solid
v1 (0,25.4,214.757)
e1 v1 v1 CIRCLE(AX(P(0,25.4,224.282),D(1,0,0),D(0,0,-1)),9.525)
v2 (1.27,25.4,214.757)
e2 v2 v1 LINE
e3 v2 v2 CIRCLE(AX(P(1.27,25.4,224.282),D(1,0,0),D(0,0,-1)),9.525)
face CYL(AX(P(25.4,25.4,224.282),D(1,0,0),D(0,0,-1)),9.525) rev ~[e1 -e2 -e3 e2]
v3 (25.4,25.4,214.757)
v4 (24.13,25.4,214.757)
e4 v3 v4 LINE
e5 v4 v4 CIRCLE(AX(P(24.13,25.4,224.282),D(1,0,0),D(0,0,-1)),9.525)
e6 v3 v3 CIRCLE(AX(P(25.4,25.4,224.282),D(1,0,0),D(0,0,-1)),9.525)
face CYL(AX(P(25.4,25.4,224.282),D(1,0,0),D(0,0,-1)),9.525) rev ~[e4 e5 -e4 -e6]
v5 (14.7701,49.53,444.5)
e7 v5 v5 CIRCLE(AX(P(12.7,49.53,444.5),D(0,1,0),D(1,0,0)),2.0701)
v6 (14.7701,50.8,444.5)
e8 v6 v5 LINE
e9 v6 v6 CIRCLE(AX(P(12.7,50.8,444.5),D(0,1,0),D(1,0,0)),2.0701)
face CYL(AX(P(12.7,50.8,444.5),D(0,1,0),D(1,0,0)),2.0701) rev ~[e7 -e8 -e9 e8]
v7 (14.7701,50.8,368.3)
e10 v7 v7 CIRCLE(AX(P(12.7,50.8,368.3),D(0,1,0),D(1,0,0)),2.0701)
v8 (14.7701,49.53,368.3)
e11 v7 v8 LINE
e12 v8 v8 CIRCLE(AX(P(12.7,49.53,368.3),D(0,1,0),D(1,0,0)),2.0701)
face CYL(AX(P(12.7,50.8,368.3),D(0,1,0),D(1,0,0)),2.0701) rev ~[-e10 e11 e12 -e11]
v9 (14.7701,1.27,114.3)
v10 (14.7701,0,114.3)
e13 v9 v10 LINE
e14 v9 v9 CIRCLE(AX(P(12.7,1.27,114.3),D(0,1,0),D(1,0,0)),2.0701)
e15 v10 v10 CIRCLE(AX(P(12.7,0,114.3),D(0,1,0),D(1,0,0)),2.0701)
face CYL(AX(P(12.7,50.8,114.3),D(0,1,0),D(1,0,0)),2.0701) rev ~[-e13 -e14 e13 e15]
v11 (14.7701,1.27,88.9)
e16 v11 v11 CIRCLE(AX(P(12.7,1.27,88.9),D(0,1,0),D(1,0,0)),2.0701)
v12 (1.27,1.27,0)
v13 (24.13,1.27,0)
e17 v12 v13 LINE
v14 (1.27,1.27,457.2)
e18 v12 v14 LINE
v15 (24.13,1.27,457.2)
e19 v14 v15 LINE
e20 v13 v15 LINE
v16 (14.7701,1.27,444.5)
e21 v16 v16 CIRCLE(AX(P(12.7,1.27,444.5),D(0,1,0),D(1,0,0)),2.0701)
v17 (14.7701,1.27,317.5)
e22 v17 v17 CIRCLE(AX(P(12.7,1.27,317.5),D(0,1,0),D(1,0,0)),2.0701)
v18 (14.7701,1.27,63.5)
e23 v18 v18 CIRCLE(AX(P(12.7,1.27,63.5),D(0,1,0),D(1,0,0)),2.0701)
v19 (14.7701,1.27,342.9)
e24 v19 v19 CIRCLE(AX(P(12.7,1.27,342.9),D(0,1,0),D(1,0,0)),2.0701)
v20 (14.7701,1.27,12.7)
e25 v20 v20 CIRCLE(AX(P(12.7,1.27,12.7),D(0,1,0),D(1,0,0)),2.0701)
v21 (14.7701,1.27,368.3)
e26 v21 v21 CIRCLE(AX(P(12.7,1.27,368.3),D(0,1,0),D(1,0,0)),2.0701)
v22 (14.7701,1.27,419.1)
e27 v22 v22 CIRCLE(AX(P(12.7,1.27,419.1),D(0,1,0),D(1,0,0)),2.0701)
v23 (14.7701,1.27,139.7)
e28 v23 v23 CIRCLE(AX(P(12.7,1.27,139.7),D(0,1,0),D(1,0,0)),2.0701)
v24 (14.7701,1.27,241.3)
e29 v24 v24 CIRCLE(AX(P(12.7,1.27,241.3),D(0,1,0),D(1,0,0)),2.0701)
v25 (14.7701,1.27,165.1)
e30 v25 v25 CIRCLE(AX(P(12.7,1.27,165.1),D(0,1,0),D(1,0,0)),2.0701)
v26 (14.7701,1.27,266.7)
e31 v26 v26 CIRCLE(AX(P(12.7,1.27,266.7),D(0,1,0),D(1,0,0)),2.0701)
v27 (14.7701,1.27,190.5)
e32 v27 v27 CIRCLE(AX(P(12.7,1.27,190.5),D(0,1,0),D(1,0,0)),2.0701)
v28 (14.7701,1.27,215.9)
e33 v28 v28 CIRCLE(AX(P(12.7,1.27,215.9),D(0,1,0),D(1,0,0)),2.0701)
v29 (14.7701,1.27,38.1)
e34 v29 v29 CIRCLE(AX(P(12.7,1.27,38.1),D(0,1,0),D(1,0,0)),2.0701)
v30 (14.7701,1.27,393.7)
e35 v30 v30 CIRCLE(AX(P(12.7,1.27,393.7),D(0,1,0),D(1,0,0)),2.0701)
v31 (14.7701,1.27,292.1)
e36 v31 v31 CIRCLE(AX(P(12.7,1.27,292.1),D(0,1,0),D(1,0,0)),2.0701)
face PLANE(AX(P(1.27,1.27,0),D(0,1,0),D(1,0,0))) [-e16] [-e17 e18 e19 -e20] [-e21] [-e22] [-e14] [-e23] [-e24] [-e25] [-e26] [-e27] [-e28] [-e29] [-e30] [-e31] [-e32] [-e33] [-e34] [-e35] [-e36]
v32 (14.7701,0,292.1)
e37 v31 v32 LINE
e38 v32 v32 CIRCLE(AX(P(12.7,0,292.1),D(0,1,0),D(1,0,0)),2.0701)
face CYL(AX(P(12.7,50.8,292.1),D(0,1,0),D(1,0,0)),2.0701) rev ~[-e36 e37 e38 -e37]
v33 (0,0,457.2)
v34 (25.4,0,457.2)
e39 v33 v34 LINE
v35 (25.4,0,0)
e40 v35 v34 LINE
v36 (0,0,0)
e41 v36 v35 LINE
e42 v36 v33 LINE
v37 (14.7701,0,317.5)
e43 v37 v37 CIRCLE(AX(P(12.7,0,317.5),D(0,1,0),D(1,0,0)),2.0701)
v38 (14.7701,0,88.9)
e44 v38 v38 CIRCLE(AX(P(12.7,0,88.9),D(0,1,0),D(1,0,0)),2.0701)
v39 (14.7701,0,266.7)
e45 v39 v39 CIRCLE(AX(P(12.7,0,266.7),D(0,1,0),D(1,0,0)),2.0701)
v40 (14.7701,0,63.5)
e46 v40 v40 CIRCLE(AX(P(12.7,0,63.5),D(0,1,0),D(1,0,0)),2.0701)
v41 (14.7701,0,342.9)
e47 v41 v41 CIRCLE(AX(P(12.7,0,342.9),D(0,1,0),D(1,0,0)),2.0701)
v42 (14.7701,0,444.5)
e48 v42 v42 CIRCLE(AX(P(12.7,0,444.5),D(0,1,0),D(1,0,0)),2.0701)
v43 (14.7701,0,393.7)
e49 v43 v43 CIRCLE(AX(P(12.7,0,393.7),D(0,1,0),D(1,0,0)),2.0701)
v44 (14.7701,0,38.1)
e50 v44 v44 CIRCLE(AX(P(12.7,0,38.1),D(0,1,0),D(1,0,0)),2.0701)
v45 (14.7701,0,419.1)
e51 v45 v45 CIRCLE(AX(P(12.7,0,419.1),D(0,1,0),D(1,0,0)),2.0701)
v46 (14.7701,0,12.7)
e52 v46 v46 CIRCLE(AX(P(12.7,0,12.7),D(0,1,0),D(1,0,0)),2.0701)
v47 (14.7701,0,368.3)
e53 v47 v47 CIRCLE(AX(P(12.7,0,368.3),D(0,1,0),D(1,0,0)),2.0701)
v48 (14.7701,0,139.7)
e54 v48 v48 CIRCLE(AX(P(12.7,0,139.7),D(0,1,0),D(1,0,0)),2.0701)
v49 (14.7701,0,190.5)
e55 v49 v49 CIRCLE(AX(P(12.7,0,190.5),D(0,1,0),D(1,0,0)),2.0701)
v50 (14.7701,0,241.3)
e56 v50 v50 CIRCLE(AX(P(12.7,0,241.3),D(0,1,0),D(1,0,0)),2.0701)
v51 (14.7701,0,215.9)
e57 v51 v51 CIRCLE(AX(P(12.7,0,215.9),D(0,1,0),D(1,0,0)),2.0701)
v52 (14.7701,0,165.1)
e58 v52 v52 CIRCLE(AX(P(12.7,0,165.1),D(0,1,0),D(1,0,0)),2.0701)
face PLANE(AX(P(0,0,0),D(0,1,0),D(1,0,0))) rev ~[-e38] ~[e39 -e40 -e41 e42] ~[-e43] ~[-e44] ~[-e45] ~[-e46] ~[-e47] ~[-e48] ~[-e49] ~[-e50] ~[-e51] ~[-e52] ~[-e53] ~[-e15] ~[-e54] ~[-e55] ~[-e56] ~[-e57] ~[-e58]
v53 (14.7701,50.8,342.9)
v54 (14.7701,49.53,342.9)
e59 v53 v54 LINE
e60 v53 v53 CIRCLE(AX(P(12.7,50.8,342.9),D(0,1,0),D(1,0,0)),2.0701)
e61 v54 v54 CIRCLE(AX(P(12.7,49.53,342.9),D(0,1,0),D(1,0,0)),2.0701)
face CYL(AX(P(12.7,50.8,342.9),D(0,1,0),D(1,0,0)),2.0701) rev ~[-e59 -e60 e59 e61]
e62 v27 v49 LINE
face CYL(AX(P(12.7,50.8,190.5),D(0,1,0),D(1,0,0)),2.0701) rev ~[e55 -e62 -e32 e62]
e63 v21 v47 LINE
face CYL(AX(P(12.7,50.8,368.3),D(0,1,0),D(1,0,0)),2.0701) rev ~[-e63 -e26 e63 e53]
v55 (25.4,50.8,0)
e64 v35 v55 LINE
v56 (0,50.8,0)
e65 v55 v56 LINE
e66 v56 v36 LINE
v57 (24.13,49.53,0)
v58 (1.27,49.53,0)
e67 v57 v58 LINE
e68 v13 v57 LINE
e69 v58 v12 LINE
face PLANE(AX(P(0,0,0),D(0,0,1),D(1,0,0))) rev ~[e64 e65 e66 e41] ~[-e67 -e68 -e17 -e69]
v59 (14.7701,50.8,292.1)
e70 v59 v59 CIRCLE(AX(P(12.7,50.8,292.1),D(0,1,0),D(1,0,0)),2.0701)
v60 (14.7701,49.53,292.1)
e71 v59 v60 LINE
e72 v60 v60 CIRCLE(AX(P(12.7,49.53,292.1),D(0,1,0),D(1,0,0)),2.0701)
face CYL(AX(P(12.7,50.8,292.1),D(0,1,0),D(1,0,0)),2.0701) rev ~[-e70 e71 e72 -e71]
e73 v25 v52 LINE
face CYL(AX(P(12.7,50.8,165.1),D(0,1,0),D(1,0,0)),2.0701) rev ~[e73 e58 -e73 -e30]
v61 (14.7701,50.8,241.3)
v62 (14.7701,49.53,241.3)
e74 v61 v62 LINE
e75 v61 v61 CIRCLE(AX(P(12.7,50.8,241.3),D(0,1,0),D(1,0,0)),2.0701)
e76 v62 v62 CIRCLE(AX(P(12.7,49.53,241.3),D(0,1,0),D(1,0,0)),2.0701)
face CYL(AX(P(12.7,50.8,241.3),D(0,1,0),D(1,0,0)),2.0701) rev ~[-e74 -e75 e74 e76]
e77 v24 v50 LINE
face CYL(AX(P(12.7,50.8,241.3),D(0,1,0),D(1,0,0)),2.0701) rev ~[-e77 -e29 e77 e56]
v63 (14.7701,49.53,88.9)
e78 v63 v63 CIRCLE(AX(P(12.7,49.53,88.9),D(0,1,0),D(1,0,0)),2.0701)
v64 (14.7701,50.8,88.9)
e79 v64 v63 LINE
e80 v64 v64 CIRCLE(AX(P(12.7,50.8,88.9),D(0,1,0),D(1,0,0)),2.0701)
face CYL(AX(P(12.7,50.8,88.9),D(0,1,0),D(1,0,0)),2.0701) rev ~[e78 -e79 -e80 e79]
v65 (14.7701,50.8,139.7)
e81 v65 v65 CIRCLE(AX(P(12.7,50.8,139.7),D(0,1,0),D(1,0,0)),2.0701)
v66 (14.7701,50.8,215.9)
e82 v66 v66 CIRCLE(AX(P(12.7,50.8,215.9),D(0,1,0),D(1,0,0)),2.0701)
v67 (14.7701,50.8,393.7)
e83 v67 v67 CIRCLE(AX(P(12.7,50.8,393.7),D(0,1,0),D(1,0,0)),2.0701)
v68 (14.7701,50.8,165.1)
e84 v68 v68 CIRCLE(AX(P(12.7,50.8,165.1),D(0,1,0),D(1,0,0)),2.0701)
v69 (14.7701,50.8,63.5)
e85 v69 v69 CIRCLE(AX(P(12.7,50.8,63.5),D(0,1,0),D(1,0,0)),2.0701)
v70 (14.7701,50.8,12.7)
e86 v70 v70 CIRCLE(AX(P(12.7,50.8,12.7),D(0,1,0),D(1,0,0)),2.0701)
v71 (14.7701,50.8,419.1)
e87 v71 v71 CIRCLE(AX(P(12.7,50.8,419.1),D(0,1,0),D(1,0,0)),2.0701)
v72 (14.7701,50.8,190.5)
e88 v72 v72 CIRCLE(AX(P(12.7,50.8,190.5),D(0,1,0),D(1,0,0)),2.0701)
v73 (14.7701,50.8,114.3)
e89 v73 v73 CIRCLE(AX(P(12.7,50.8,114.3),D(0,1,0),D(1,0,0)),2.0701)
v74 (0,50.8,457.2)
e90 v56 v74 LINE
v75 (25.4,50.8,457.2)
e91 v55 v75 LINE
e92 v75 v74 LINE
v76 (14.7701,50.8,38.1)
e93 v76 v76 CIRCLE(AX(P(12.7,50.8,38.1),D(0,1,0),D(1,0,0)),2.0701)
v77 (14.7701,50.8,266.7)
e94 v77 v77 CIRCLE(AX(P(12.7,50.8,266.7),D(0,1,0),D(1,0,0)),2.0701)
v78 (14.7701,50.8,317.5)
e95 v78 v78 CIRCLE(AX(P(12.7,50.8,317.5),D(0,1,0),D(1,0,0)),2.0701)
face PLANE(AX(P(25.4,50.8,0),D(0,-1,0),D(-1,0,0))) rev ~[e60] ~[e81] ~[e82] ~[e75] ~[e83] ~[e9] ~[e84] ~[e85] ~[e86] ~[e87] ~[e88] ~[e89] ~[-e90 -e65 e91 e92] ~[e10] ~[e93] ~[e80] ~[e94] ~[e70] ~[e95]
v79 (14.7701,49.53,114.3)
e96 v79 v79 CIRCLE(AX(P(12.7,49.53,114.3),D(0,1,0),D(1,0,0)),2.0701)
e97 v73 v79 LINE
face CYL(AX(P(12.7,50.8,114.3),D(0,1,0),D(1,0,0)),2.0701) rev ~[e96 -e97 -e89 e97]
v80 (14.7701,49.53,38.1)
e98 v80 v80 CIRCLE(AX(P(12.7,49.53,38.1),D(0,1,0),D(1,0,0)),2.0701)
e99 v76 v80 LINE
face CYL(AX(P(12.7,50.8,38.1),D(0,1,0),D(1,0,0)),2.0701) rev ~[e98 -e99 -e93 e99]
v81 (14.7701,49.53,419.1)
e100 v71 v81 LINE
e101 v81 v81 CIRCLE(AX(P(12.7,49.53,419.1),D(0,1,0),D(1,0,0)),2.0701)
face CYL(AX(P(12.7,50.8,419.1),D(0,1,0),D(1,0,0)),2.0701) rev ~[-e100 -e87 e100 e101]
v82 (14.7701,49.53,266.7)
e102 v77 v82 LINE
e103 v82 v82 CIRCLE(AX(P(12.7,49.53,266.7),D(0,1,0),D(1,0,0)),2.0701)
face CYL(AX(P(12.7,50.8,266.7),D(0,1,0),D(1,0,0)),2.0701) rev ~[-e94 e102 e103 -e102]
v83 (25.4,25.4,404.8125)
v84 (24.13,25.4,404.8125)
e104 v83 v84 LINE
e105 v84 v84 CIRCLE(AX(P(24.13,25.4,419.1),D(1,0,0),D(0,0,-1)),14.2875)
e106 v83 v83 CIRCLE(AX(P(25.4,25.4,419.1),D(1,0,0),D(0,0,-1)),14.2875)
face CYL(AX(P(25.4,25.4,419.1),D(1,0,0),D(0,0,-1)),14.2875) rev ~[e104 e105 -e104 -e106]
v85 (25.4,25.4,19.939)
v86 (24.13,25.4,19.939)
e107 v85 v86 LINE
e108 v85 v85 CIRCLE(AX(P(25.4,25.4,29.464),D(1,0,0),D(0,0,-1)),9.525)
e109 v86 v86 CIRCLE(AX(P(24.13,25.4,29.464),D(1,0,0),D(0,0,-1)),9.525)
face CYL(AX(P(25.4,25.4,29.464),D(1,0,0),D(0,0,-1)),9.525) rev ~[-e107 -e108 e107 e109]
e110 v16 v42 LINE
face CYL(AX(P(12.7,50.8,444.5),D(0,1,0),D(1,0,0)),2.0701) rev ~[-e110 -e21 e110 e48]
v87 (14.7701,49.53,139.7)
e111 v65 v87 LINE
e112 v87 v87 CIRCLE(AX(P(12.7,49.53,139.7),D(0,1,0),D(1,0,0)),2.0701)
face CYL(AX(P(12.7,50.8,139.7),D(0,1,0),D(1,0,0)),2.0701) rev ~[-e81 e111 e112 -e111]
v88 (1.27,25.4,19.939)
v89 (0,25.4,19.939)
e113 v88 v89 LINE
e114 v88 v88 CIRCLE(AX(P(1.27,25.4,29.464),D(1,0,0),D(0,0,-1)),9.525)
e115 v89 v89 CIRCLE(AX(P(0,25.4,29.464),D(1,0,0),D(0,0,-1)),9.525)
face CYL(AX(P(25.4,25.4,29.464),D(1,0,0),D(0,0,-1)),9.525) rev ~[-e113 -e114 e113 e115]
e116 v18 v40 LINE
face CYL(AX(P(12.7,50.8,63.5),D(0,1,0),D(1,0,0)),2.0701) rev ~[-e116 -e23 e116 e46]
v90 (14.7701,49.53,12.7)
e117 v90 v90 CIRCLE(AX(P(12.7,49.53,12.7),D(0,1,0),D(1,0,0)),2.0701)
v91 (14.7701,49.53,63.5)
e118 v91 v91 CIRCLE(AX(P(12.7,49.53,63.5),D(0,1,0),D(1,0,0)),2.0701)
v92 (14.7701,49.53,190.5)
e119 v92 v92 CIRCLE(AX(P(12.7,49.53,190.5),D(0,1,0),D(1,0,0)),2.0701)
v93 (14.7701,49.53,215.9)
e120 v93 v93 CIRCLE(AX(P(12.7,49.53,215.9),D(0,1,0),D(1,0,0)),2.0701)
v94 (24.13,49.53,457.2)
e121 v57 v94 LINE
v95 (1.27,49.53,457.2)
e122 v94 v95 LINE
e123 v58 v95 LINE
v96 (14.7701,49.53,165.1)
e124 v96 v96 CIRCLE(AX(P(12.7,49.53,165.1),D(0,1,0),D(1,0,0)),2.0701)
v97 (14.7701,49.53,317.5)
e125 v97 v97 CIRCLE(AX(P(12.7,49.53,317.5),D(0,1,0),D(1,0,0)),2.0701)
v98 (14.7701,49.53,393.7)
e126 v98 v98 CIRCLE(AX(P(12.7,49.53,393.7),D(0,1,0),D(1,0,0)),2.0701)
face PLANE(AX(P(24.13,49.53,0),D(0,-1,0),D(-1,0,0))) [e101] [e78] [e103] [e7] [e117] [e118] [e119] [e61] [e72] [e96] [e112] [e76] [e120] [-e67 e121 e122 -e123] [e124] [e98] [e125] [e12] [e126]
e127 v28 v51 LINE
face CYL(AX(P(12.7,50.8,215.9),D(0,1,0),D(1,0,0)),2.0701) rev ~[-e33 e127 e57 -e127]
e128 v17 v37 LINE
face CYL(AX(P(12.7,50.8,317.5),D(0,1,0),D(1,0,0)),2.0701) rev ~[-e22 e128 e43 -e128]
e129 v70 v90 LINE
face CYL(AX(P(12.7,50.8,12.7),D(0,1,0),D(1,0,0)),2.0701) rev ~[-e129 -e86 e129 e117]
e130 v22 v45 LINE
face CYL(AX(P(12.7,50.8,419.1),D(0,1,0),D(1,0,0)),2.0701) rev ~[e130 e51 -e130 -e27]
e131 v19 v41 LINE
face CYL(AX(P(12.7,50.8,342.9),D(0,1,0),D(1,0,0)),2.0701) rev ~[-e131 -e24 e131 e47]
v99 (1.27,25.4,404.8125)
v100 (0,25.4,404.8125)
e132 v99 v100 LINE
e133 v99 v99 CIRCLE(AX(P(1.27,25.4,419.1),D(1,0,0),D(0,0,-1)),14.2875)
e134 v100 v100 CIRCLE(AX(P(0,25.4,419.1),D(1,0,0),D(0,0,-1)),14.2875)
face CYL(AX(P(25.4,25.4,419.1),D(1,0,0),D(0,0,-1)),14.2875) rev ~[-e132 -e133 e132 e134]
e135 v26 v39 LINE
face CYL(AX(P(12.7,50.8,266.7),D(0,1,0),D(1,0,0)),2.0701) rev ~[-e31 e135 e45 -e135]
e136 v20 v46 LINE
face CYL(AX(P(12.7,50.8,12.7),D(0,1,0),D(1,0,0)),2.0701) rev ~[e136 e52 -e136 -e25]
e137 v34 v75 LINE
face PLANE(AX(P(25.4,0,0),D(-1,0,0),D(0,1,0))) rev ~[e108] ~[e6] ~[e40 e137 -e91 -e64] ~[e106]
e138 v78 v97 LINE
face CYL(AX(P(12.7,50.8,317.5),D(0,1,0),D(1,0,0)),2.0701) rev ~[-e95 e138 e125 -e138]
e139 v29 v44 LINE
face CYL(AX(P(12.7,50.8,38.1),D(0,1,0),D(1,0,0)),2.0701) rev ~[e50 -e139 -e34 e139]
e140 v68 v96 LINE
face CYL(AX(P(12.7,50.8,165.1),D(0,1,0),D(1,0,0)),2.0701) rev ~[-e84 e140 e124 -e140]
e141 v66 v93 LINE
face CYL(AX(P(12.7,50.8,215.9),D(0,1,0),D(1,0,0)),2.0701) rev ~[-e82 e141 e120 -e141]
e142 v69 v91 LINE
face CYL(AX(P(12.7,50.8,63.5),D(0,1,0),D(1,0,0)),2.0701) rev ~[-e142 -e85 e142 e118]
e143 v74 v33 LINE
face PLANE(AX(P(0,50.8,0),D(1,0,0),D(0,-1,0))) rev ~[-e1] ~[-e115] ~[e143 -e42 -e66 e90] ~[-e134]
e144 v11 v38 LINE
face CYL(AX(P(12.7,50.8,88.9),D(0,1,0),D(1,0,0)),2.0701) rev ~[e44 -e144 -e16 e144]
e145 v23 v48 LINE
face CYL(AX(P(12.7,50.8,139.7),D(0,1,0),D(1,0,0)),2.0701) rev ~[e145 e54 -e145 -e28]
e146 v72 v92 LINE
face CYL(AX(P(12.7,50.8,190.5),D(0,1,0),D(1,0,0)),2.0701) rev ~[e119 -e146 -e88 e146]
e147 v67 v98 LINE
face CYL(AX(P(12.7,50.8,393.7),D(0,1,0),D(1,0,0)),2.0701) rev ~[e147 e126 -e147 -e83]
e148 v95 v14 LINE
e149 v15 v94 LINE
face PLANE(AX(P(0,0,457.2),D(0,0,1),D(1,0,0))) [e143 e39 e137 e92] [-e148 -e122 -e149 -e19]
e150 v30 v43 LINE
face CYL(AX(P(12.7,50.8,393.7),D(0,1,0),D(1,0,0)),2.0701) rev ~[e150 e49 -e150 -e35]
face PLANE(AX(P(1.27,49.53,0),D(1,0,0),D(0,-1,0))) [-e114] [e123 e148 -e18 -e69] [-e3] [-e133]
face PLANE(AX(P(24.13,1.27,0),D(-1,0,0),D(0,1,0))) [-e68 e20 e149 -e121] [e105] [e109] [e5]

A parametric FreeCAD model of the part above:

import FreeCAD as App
import Part
import Sketcher
Q = App.Units.Quantity

doc = App.newDocument("Part")
body = doc.addObject("PartDesign::Body", "Body")

sketch1 = body.newObject("Sketcher::SketchObject", "Sketch")
sketch1.AttachmentSupport = (doc.getObject("XY_Plane"), [""])
sketch1.MapMode = "FlatFace"
sketch1.addGeometry(Part.LineSegment(App.Vector(0, 51, 0), App.Vector(0, 0, 0)), False)
sketch1.addGeometry(Part.LineSegment(App.Vector(0, 0, 0), App.Vector(25, 0, 0)), False)
sketch1.addGeometry(Part.LineSegment(App.Vector(25, 0, 0), App.Vector(25, 51, 0)), False)
sketch1.addGeometry(Part.LineSegment(App.Vector(25, 51, 0), App.Vector(0, 51, 0)), False)
sketch1.addGeometry(Part.LineSegment(App.Vector(24, 1, 0), App.Vector(1, 1, 0)), False)
sketch1.addGeometry(Part.LineSegment(App.Vector(1, 1, 0), App.Vector(1, 50, 0)), False)
sketch1.addGeometry(Part.LineSegment(App.Vector(1, 50, 0), App.Vector(24, 50, 0)), False)
sketch1.addGeometry(Part.LineSegment(App.Vector(24, 50, 0), App.Vector(24, 1, 0)), False)
sketch1.addConstraint(Sketcher.Constraint("Coincident", 0, 2, 1, 1))
sketch1.addConstraint(Sketcher.Constraint("Coincident", 1, 2, 2, 1))
sketch1.addConstraint(Sketcher.Constraint("Coincident", 2, 2, 3, 1))
sketch1.addConstraint(Sketcher.Constraint("Coincident", 3, 2, 0, 1))
sketch1.addConstraint(Sketcher.Constraint("Coincident", 4, 2, 5, 1))
sketch1.addConstraint(Sketcher.Constraint("Coincident", 5, 2, 6, 1))
sketch1.addConstraint(Sketcher.Constraint("Coincident", 6, 2, 7, 1))
sketch1.addConstraint(Sketcher.Constraint("Coincident", 7, 2, 4, 1))
sketch1.addConstraint(Sketcher.Constraint("Vertical", 0))
sketch1.addConstraint(Sketcher.Constraint("Horizontal", 1))
sketch1.addConstraint(Sketcher.Constraint("Vertical", 2))
sketch1.addConstraint(Sketcher.Constraint("Horizontal", 3))
sketch1.addConstraint(Sketcher.Constraint("Horizontal", 4))
sketch1.addConstraint(Sketcher.Constraint("Vertical", 5))
sketch1.addConstraint(Sketcher.Constraint("Horizontal", 6))
sketch1.addConstraint(Sketcher.Constraint("Vertical", 7))
sketch1.addConstraint(Sketcher.Constraint("Coincident", 0, 2, -1, 1))
sketch1.addConstraint(Sketcher.Constraint("DistanceX", 1, 1, 1, 2, Q("1 in")))
sketch1.addConstraint(Sketcher.Constraint("DistanceY", 0, 2, 0, 1, Q("2 in")))
sketch1.addConstraint(Sketcher.Constraint("DistanceX", -1, 1, 4, 2, Q("0.05 in")))
sketch1.addConstraint(Sketcher.Constraint("DistanceY", -1, 1, 4, 2, Q("0.05 in")))
sketch1.addConstraint(Sketcher.Constraint("DistanceY", 5, 2, 3, 2, Q("0.05 in")))
sketch1.addConstraint(Sketcher.Constraint("DistanceX", 6, 2, 2, 2, Q("0.05 in")))
pad1 = body.newObject("PartDesign::Pad", "Pad")
pad1.Profile = sketch1
pad1.Length = Q("18 in")

sketch2 = body.newObject("Sketcher::SketchObject", "Sketch001")
sketch2.AttachmentSupport = (doc.getObject("XZ_Plane"), [""])
sketch2.MapMode = "FlatFace"
sketch2.AttachmentOffset = App.Placement(App.Vector(0, 0, -2 * 25.4), App.Rotation())
sketch2.addGeometry(Part.Circle(App.Vector(12.7, 12.7, 0), App.Vector(0, 0, 1), 2.1), False)
sketch2.addConstraint(Sketcher.Constraint("Diameter", 0, Q("0.163 in")))
sketch2.addConstraint(Sketcher.Constraint("DistanceX", -1, 1, 0, 3, Q("0.5 in")))
sketch2.addConstraint(Sketcher.Constraint("DistanceY", -1, 1, 0, 3, Q("0.5 in")))
pocket1 = body.newObject("PartDesign::Pocket", "Pocket")
pocket1.Profile = sketch2
pocket1.Length = Q("18 in")
pocket1.Reversed = True
doc.recompute()

linearpattern = body.newObject("PartDesign::LinearPattern", "LinearPattern")
linearpattern.Originals = [pocket1]
linearpattern.Direction = (doc.getObject("Z_Axis"), [""])
linearpattern.Mode = "offset"
linearpattern.Offset = Q("1 in")
linearpattern.Occurrences = 18
body.Tip = linearpattern

sketch3 = body.newObject("Sketcher::SketchObject", "Sketch002")
sketch3.AttachmentSupport = (doc.getObject("YZ_Plane"), [""])
sketch3.MapMode = "FlatFace"
sketch3.AttachmentOffset = App.Placement(App.Vector(0, 0, 1 * 25.4), App.Rotation())
sketch3.addGeometry(Part.Circle(App.Vector(25, 419, 0), App.Vector(0, 0, 1), 14), False)
sketch3.addGeometry(Part.Circle(App.Vector(25, 224, 0), App.Vector(0, 0, 1), 10), False)
sketch3.addGeometry(Part.Circle(App.Vector(25, 29, 0), App.Vector(0, 0, 1), 10), False)
sketch3.addConstraint(Sketcher.Constraint("Equal", 1, 2))
sketch3.addConstraint(Sketcher.Constraint("Vertical", 0, 3, 1, 3))
sketch3.addConstraint(Sketcher.Constraint("Vertical", 1, 3, 2, 3))
sketch3.addConstraint(Sketcher.Constraint("Diameter", 1, Q("0.75 in")))
sketch3.addConstraint(Sketcher.Constraint("Diameter", 0, Q("1.125 in")))
sketch3.addConstraint(Sketcher.Constraint("DistanceY", 1, 3, 0, 3, Q("7.67 in")))
sketch3.addConstraint(Sketcher.Constraint("DistanceY", 2, 3, 1, 3, Q("7.67 in")))
sketch3.addConstraint(Sketcher.Constraint("DistanceX", -1, 1, 0, 3, Q("1 in")))
sketch3.addConstraint(Sketcher.Constraint("DistanceY", -1, 1, 0, 3, Q("16.5 in")))
pocket2 = body.newObject("PartDesign::Pocket", "Pocket001")
pocket2.Profile = sketch3
pocket2.Type = "ThroughAll"

doc.recompute()
